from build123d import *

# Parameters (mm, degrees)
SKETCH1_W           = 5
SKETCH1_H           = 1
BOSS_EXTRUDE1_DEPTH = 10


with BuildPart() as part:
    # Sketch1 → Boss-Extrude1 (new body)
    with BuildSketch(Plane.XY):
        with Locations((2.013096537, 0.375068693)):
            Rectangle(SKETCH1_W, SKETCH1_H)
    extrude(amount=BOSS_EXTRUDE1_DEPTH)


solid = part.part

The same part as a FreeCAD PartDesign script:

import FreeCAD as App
import Part
import Sketcher
Q = App.Units.Quantity

doc = App.newDocument("Part")
body = doc.addObject("PartDesign::Body", "Body")

# Sketch on XY plane
sketch1 = doc.addObject("Sketcher::SketchObject", "Sketch")
body.addObject(sketch1)
sketch1.AttachmentSupport = (doc.XY_Plane, [""])
sketch1.MapMode = "FlatFace"
sketch1.addGeometry([
    Part.LineSegment(App.Vector(-0.486903, 0.875069, 0), App.Vector(-0.486903, -0.124931, 0)),
    Part.LineSegment(App.Vector(-0.486903, -0.124931, 0), App.Vector(4.513097, -0.124931, 0)),
    Part.LineSegment(App.Vector(4.513097, -0.124931, 0), App.Vector(4.513097, 0.875069, 0)),
    Part.LineSegment(App.Vector(4.513097, 0.875069, 0), App.Vector(-0.486903, 0.875069, 0)),
], False)
sketch1.addConstraint([
    Sketcher.Constraint("Coincident", 0, 2, 1, 1),
    Sketcher.Constraint("Coincident", 1, 2, 2, 1),
    Sketcher.Constraint("Coincident", 2, 2, 3, 1),
    Sketcher.Constraint("Coincident", 3, 2, 0, 1),
    Sketcher.Constraint("Vertical", 0),
    Sketcher.Constraint("Horizontal", 1),
    Sketcher.Constraint("Vertical", 2),
    Sketcher.Constraint("Horizontal", 3),
    Sketcher.Constraint("DistanceX", 1, 1, 1, 2, Q("5 mm")),
    Sketcher.Constraint("DistanceY", 0, 2, 0, 1, Q("1 mm")),
    Sketcher.Constraint("DistanceY", 0, 2, -1, 1, Q("0.124931 mm")),
    Sketcher.Constraint("DistanceX", 0, 2, -1, 1, Q("0.486903 mm")),
])
pad1 = doc.addObject("PartDesign::Pad", "Pad")
body.addObject(pad1)
pad1.Profile = sketch1
pad1.Length = 10

doc.recompute()
